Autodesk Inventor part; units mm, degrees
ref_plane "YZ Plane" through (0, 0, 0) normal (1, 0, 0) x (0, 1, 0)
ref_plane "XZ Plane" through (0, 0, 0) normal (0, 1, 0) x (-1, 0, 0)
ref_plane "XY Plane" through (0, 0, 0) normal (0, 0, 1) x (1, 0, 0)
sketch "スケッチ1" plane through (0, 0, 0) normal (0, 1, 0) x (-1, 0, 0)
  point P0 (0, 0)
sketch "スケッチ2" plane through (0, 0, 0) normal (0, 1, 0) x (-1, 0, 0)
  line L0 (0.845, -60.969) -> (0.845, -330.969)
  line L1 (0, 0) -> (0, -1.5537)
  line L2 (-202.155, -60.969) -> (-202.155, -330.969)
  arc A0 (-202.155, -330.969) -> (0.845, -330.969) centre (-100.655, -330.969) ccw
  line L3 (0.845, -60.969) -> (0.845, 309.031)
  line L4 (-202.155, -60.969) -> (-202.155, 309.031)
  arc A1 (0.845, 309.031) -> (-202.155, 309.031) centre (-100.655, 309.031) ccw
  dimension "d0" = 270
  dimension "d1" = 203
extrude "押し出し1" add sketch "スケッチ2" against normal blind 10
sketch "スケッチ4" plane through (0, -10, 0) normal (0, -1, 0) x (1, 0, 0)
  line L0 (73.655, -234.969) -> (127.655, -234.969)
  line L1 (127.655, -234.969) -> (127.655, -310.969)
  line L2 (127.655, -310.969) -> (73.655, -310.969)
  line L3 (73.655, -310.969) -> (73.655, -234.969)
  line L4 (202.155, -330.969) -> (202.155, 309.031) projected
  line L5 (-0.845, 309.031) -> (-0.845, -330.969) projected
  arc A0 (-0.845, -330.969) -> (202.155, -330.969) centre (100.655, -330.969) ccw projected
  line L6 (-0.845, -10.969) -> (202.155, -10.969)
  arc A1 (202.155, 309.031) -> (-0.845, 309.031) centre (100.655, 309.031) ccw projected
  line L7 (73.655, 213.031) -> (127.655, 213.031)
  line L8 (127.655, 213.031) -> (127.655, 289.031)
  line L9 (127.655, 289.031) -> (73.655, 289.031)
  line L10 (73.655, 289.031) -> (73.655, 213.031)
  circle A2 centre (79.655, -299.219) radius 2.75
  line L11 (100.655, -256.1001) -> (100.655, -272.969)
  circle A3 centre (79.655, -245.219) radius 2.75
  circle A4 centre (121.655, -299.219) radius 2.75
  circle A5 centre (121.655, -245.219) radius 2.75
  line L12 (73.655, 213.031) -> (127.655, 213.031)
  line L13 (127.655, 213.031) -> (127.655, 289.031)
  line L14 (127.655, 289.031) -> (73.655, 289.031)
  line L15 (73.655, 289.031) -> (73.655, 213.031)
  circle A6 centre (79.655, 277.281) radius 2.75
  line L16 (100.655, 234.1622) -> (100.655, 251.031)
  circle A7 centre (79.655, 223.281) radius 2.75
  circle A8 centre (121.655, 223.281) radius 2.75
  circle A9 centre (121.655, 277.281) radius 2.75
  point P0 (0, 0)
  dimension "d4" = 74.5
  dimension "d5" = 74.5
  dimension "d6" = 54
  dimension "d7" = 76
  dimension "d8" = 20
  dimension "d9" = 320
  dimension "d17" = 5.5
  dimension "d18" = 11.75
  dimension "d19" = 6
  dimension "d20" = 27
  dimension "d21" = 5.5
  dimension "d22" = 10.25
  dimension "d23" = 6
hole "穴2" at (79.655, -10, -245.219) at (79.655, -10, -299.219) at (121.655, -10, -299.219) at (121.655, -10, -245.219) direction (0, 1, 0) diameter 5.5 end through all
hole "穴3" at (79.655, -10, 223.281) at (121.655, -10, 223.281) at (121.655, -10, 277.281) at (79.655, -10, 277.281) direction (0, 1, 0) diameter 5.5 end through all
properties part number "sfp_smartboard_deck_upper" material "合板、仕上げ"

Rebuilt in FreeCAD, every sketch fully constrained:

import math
import FreeCAD as App
import Part
import Sketcher

doc = App.newDocument("Part")
body = doc.addObject("PartDesign::Body", "Body")

# Sketch on XZ plane
sketch1 = body.newObject("Sketcher::SketchObject", "Sketch")
sketch1.AttachmentSupport = (doc.getObject("XZ_Plane"), [""])
sketch1.MapMode = "FlatFace"
sketch1.addGeometry([
    Part.LineSegment(App.Vector(-1, -331, 0), App.Vector(-1, 309, 0)),
    Part.ArcOfCircle(Part.Circle(App.Vector(101, 309, 0), App.Vector(0, 0, 1), 102), math.radians(0), math.radians(180)),
    Part.LineSegment(App.Vector(202, 309, 0), App.Vector(202, -331, 0)),
    Part.ArcOfCircle(Part.Circle(App.Vector(101, -331, 0), App.Vector(0, 0, 1), 102), math.radians(180), math.radians(360)),
], False)
sketch1.addConstraint([
    Sketcher.Constraint("Tangent", 0, 2, 1, 2),
    Sketcher.Constraint("Tangent", 1, 1, 2, 1),
    Sketcher.Constraint("Tangent", 2, 2, 3, 2),
    Sketcher.Constraint("Tangent", 3, 1, 0, 1),
    Sketcher.Constraint("Vertical", 0),
    Sketcher.Constraint("Vertical", 2),
    Sketcher.Constraint("Radius", 1, 101.5),
    Sketcher.Constraint("DistanceY", 0, 1, 0, 2, 640.0),
    Sketcher.Constraint("DistanceX", -1, 1, 1, 3, 100.655),
    Sketcher.Constraint("DistanceY", -1, 1, 1, 3, 309.031),
])
pad1 = body.newObject("PartDesign::Pad", "Pad")
pad1.Profile = sketch1
pad1.Length = 10

# Sketch on XZ plane
sketch2 = body.newObject("Sketcher::SketchObject", "Sketch001")
sketch2.AttachmentSupport = (doc.getObject("XZ_Plane"), [""])
sketch2.MapMode = "FlatFace"
sketch2.AttachmentOffset = App.Placement(App.Vector(0, 0, 10), App.Rotation())
sketch2.addGeometry([
    Part.Circle(App.Vector(79.7, -245.2, 0), App.Vector(0, 0, 1), 2.8),
    Part.Circle(App.Vector(79.7, -299.2, 0), App.Vector(0, 0, 1), 2.8),
    Part.Circle(App.Vector(121.7, -299.2, 0), App.Vector(0, 0, 1), 2.8),
    Part.Circle(App.Vector(121.7, -245.2, 0), App.Vector(0, 0, 1), 2.8),
], False)
sketch2.addConstraint([
    Sketcher.Constraint("Equal", 0, 1),
    Sketcher.Constraint("Equal", 1, 2),
    Sketcher.Constraint("Equal", 2, 3),
    Sketcher.Constraint("Horizontal", 1, 3, 2, 3),
    Sketcher.Constraint("Horizontal", 0, 3, 3, 3),
    Sketcher.Constraint("Vertical", 0, 3, 1, 3),
    Sketcher.Constraint("Vertical", 2, 3, 3, 3),
    Sketcher.Constraint("Diameter", 0, 5.5),
    Sketcher.Constraint("DistanceY", 1, 3, 0, 3, 54.0),
    Sketcher.Constraint("DistanceX", 1, 3, 2, 3, 42.0),
    Sketcher.Constraint("DistanceX", -1, 1, 0, 3, 79.655),
    Sketcher.Constraint("DistanceY", 0, 3, -1, 1, 245.219),
])
doc.recompute()
hole = body.newObject("PartDesign::Hole", "Hole")
hole.Profile = sketch2
hole.ThreadType = "None"
hole.Diameter = 5.5
hole.DepthType = "ThroughAll"

# Sketch on XZ plane
sketch3 = body.newObject("Sketcher::SketchObject", "Sketch002")
sketch3.AttachmentSupport = (doc.getObject("XZ_Plane"), [""])
sketch3.MapMode = "FlatFace"
sketch3.AttachmentOffset = App.Placement(App.Vector(0, 0, 10), App.Rotation())
sketch3.addGeometry([
    Part.Circle(App.Vector(79.7, 223.3, 0), App.Vector(0, 0, 1), 2.8),
    Part.Circle(App.Vector(121.7, 223.3, 0), App.Vector(0, 0, 1), 2.8),
    Part.Circle(App.Vector(121.7, 277.3, 0), App.Vector(0, 0, 1), 2.8),
    Part.Circle(App.Vector(79.7, 277.3, 0), App.Vector(0, 0, 1), 2.8),
], False)
sketch3.addConstraint([
    Sketcher.Constraint("Equal", 0, 1),
    Sketcher.Constraint("Equal", 1, 2),
    Sketcher.Constraint("Equal", 2, 3),
    Sketcher.Constraint("Horizontal", 0, 3, 1, 3),
    Sketcher.Constraint("Horizontal", 2, 3, 3, 3),
    Sketcher.Constraint("Vertical", 1, 3, 2, 3),
    Sketcher.Constraint("Vertical", 0, 3, 3, 3),
    Sketcher.Constraint("Diameter", 0, 5.5),
    Sketcher.Constraint("DistanceX", 0, 3, 1, 3, 42.0),
    Sketcher.Constraint("DistanceY", 1, 3, 2, 3, 54.0),
    Sketcher.Constraint("DistanceX", -1, 1, 0, 3, 79.655),
    Sketcher.Constraint("DistanceY", -1, 1, 0, 3, 223.281),
])
doc.recompute()
hole2 = body.newObject("PartDesign::Hole", "Hole001")
hole2.Profile = sketch3
hole2.ThreadType = "None"
hole2.Diameter = 5.5
hole2.DepthType = "ThroughAll"

doc.recompute()
